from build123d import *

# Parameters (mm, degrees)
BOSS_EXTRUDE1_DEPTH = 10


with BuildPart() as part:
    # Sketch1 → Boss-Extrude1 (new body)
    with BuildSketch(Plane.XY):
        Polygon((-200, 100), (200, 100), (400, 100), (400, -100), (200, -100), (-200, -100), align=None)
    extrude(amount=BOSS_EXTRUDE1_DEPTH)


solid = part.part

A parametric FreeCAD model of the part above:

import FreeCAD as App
import Part
import Sketcher


def add_polygon(sketch, points):
    """Adds a closed chain of lines whose ends are joined by coincident constraints."""
    first, n = sketch.GeometryCount, len(points)
    for a, b in zip(points, points[1:] + points[:1]):
        sketch.addGeometry(Part.LineSegment(App.Vector(*a, 0), App.Vector(*b, 0)), False)
    for i in range(n):
        sketch.addConstraint(Sketcher.Constraint("Coincident", first + i, 2, first + (i + 1) % n, 1))

doc = App.newDocument("Part")
body = doc.addObject("PartDesign::Body", "Body")

# Sketch on XY plane
sketch1 = body.newObject("Sketcher::SketchObject", "Sketch")
sketch1.AttachmentSupport = (doc.getObject("XY_Plane"), [""])
sketch1.MapMode = "FlatFace"
add_polygon(sketch1, [(400, 100), (-200, 100), (-200, -100), (400, -100)])  # lines 0-3
sketch1.addConstraint(Sketcher.Constraint("Horizontal", 0))
sketch1.addConstraint(Sketcher.Constraint("Vertical", 1))
sketch1.addConstraint(Sketcher.Constraint("Horizontal", 2))
sketch1.addConstraint(Sketcher.Constraint("Vertical", 3))
sketch1.addConstraint(Sketcher.Constraint("DistanceX", 0, 2, 0, 1, 600.0))
sketch1.addConstraint(Sketcher.Constraint("DistanceY", 1, 2, 1, 1, 200.0))
sketch1.addConstraint(Sketcher.Constraint("DistanceX", 0, 2, -1, 1, 200.0))
sketch1.addConstraint(Sketcher.Constraint("DistanceY", -1, 1, 0, 2, 100.0))
pad1 = body.newObject("PartDesign::Pad", "Pad")
pad1.Profile = sketch1
pad1.Length = 10

doc.recompute()
